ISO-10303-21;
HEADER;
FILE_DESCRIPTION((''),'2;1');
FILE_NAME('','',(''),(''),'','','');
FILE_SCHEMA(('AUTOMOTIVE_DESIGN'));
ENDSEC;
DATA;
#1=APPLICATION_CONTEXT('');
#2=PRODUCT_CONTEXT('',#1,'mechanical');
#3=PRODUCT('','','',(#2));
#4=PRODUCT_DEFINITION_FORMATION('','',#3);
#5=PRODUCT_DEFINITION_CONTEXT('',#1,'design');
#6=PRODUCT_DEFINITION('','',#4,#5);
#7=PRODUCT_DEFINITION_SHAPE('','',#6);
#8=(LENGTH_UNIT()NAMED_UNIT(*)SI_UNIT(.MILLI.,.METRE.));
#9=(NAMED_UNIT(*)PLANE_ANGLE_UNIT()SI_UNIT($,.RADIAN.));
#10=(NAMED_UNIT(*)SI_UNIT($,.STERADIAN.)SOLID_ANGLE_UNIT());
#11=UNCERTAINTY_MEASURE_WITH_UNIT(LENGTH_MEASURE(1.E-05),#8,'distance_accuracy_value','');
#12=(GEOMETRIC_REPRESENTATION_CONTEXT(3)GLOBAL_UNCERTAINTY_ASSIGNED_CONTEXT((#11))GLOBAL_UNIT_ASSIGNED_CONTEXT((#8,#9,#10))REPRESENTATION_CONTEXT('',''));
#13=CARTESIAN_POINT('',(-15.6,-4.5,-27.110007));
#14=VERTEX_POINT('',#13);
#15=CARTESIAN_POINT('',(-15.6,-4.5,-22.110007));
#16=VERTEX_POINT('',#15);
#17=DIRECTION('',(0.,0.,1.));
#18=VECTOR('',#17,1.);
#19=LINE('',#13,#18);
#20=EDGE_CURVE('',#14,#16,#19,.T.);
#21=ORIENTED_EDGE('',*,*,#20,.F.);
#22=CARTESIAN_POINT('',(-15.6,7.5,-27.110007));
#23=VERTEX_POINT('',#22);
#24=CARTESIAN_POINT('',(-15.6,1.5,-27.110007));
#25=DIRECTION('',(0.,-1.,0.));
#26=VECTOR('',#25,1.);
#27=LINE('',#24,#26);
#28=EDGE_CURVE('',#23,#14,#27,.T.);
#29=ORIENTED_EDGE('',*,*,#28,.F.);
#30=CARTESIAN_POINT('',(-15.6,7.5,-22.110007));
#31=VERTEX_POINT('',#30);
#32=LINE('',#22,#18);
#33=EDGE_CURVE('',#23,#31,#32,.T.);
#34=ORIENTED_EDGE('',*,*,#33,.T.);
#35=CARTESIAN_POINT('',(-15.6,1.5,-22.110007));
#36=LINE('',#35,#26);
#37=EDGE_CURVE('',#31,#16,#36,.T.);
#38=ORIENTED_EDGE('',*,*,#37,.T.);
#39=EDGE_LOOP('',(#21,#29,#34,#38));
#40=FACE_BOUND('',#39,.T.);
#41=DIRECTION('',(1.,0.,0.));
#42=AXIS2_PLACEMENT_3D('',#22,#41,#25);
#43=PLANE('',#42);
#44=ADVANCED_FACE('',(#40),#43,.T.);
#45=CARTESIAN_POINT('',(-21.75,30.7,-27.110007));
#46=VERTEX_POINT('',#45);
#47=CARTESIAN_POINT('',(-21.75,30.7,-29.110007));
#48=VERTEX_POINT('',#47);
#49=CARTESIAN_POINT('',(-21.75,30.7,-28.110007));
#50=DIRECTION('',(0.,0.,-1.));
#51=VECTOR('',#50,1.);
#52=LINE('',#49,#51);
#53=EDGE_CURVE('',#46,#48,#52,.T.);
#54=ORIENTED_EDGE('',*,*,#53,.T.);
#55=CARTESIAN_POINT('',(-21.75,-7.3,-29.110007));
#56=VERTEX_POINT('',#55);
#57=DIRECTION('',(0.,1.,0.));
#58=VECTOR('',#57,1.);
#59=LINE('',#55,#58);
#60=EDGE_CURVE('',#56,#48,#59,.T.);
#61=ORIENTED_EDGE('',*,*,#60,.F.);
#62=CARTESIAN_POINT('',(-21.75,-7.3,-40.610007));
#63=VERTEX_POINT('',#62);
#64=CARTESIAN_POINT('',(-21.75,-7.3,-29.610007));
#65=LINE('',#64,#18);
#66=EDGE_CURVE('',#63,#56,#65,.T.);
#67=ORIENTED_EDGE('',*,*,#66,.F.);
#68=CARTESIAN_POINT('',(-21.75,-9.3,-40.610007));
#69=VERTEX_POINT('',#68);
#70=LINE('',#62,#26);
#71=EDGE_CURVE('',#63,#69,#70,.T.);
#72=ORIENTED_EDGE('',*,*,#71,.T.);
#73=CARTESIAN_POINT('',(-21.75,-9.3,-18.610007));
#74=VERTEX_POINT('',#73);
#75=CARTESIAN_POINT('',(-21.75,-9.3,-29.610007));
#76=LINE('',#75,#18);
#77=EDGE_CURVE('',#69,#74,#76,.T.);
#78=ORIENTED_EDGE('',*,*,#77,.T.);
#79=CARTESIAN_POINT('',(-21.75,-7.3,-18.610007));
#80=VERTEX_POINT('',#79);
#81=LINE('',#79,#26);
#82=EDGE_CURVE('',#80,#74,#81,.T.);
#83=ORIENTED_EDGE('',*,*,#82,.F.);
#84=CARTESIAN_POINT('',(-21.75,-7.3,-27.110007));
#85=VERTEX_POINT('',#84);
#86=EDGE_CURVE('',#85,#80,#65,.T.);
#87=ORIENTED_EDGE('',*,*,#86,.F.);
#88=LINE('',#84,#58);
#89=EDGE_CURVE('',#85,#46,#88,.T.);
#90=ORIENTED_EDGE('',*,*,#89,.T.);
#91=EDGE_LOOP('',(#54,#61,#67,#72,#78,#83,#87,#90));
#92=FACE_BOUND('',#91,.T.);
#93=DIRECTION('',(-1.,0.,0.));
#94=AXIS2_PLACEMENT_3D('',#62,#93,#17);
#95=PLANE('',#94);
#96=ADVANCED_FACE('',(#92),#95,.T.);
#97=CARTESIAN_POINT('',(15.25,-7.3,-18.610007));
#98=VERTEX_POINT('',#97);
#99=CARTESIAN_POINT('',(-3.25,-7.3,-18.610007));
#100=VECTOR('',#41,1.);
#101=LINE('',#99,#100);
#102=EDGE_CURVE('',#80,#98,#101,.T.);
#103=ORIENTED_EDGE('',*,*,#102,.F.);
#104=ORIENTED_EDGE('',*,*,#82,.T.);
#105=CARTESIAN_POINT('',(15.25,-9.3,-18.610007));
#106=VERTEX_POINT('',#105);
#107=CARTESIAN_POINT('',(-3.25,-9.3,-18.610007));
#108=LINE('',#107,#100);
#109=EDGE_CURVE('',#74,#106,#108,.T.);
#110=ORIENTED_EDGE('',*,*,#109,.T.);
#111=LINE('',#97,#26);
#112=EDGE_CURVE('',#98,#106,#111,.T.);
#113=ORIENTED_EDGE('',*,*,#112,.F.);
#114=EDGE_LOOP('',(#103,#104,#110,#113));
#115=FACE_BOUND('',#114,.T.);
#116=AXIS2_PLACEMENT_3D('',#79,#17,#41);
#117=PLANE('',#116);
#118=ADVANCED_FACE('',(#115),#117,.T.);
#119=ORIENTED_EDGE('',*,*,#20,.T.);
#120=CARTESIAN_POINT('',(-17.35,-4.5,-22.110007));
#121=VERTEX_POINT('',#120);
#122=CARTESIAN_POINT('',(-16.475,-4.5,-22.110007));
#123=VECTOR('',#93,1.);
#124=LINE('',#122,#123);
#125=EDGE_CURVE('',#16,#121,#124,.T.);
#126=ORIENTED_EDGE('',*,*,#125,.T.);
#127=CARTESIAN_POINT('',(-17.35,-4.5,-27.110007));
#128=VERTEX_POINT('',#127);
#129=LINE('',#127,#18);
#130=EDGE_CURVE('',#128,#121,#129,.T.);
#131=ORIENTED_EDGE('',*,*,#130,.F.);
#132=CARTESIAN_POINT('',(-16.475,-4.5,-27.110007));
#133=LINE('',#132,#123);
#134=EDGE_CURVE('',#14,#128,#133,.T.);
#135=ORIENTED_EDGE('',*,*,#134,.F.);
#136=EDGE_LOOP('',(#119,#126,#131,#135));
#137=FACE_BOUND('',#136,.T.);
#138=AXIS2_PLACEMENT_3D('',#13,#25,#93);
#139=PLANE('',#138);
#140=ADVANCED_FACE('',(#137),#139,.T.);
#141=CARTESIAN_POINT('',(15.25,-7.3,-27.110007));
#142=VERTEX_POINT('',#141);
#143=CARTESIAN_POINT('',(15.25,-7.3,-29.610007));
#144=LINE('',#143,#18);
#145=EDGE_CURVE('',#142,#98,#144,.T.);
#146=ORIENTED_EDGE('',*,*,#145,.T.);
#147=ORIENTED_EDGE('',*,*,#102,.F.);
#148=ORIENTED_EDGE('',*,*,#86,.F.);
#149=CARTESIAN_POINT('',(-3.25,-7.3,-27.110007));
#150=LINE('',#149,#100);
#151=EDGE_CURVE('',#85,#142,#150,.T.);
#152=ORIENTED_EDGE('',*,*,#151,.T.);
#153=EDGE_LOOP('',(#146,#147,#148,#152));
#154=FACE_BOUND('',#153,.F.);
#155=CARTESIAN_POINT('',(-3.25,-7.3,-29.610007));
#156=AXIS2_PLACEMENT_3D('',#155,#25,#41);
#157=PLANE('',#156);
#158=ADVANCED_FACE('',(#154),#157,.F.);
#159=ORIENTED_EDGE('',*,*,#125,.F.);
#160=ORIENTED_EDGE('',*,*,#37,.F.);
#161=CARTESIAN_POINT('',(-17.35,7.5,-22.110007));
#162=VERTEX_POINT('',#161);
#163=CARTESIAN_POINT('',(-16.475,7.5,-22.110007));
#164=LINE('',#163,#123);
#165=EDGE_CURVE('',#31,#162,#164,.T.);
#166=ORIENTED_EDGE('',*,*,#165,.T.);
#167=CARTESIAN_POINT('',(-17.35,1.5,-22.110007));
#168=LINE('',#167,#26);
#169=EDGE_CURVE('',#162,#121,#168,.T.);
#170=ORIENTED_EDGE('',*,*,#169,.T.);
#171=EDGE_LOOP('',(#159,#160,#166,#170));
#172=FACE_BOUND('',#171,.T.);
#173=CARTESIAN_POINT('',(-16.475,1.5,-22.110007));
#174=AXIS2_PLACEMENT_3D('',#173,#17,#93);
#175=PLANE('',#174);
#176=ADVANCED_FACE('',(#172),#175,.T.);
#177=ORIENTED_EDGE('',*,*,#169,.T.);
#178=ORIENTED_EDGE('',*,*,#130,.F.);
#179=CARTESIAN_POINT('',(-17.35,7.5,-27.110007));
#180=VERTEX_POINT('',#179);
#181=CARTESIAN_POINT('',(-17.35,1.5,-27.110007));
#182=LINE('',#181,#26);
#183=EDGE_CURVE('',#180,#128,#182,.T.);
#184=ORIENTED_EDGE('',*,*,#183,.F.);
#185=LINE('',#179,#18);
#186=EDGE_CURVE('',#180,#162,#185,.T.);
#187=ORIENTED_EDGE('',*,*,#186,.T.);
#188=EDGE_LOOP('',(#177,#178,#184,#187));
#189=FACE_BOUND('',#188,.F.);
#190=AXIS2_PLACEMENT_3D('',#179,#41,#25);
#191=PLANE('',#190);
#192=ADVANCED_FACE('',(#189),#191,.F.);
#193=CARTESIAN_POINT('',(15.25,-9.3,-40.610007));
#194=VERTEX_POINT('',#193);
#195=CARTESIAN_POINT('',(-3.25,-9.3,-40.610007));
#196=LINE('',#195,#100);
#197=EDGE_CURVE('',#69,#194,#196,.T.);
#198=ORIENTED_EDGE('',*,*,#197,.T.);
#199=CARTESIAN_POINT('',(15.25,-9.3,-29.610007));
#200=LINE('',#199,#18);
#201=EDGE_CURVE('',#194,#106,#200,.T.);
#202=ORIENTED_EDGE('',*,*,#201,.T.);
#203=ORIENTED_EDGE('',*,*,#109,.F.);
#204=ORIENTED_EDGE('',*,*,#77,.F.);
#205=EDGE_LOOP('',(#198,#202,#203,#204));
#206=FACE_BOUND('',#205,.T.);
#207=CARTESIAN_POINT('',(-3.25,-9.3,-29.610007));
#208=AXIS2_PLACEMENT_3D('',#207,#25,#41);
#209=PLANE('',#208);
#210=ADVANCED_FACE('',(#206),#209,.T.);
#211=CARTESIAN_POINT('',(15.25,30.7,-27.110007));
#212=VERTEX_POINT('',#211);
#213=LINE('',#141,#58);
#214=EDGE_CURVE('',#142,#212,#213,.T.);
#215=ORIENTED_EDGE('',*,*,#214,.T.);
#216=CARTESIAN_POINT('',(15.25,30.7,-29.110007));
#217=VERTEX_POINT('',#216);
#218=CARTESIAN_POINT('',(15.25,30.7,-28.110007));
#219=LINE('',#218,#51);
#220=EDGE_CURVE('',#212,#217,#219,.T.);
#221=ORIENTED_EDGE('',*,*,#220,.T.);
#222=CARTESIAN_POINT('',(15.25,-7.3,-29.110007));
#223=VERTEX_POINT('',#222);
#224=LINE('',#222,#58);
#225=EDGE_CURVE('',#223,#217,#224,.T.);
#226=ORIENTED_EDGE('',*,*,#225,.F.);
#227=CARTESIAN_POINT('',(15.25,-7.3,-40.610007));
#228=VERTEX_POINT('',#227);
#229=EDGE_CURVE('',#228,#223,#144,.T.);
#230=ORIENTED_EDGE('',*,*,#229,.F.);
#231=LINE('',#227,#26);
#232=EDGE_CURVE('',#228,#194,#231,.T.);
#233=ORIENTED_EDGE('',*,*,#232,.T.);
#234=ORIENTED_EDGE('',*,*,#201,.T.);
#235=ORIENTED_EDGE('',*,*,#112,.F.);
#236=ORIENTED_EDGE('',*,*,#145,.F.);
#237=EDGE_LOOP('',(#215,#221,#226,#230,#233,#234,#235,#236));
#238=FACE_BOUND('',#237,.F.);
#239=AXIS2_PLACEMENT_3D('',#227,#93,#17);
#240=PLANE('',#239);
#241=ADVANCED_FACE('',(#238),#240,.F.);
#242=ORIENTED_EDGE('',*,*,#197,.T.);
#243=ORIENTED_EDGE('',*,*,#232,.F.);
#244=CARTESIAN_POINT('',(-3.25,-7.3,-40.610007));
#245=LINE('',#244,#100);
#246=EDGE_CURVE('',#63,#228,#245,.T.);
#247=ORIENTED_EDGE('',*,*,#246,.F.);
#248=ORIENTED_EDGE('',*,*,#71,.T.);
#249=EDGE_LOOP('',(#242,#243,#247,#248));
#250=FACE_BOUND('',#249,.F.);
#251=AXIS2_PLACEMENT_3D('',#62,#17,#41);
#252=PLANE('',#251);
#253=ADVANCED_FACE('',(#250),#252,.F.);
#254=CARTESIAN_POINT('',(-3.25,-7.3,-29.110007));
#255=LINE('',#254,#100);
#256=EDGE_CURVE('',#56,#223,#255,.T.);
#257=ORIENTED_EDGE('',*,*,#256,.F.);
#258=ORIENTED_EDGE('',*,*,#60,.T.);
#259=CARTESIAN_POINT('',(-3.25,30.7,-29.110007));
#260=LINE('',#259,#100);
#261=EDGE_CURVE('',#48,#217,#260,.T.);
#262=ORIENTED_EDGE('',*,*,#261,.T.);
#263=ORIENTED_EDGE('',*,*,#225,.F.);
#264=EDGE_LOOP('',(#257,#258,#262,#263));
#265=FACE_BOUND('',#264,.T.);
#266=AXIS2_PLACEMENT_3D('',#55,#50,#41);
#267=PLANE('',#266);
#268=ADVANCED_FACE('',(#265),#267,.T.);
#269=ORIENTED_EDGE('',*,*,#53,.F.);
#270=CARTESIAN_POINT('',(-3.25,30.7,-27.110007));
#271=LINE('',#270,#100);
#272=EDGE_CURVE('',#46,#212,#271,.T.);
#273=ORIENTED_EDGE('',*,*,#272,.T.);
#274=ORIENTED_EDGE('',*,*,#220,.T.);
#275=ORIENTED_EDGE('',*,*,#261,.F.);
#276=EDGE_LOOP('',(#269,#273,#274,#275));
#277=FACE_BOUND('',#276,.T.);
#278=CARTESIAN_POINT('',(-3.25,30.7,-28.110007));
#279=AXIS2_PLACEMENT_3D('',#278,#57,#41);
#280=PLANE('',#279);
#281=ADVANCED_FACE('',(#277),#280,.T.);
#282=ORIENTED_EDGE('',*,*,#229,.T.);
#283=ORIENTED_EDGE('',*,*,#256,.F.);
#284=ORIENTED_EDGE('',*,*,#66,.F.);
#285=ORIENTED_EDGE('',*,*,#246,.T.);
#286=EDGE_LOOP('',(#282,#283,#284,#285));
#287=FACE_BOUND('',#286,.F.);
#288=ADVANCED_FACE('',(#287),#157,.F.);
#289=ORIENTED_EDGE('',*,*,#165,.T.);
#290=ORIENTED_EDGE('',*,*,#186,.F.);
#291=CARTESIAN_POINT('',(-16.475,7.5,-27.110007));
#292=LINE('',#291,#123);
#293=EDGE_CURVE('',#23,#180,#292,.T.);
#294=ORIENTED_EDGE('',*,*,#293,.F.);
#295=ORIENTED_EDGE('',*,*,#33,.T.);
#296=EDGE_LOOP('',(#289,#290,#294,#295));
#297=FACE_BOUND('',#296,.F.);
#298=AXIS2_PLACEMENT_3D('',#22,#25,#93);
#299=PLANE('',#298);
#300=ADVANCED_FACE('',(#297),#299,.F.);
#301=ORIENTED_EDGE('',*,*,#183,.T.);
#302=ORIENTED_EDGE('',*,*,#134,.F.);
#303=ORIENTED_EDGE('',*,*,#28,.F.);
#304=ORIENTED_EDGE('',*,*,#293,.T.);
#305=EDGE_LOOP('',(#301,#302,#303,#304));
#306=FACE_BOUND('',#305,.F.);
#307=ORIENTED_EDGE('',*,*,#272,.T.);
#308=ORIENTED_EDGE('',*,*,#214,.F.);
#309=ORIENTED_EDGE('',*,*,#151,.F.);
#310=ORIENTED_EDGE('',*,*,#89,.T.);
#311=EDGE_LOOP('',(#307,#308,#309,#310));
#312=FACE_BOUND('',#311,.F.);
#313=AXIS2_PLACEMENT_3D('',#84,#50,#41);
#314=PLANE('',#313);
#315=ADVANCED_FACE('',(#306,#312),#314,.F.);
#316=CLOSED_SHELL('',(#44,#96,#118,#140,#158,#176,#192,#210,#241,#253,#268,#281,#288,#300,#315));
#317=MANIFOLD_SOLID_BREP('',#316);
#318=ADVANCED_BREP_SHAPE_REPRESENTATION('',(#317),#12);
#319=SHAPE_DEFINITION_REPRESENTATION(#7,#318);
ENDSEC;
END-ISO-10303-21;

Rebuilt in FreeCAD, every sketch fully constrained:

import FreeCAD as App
import Part
import Sketcher
Q = App.Units.Quantity


def add_polygon(sketch, points):
    """Adds a closed chain of lines whose ends are joined by coincident constraints."""
    first, n = sketch.GeometryCount, len(points)
    for a, b in zip(points, points[1:] + points[:1]):
        sketch.addGeometry(Part.LineSegment(App.Vector(*a, 0), App.Vector(*b, 0)), False)
    for i in range(n):
        sketch.addConstraint(Sketcher.Constraint("Coincident", first + i, 2, first + (i + 1) % n, 1))

doc = App.newDocument("Part")
body = doc.addObject("PartDesign::Body", "Body")

# Sketch on XZ plane
sketch1 = body.newObject("Sketcher::SketchObject", "Sketch")
sketch1.AttachmentSupport = (doc.getObject("XZ_Plane"), [""])
sketch1.MapMode = "FlatFace"
sketch1.AttachmentOffset = App.Placement(App.Vector(0, 0, 7.3), App.Rotation())
add_polygon(sketch1, [(-22, -19), (-22, -41), (15, -41), (15, -19)])  # lines 0-3
sketch1.addConstraint([
    Sketcher.Constraint("Vertical", 0),
    Sketcher.Constraint("Horizontal", 1),
    Sketcher.Constraint("Vertical", 2),
    Sketcher.Constraint("Horizontal", 3),
    Sketcher.Constraint("DistanceX", 1, 1, 1, 2, Q("37 mm")),
    Sketcher.Constraint("DistanceY", 0, 2, 0, 1, Q("22 mm")),
    Sketcher.Constraint("DistanceX", 0, 2, -1, 1, Q("21.75 mm")),
    Sketcher.Constraint("DistanceY", 0, 2, -1, 1, Q("40.610007 mm")),
])
pad1 = body.newObject("PartDesign::Pad", "Pad")
pad1.Profile = sketch1
pad1.Length = 2

# Sketch on XZ plane
sketch2 = body.newObject("Sketcher::SketchObject", "Sketch001")
sketch2.AttachmentSupport = (doc.getObject("XZ_Plane"), [""])
sketch2.MapMode = "FlatFace"
sketch2.AttachmentOffset = App.Placement(App.Vector(0, 0, 7.3), App.Rotation())
add_polygon(sketch2, [(-21.8, -29.1), (-21.8, -27.1), (15.2, -27.1), (15.2, -29.1)])  # lines 0-3
sketch2.addConstraint([
    Sketcher.Constraint("Vertical", 0),
    Sketcher.Constraint("Horizontal", 1),
    Sketcher.Constraint("Vertical", 2),
    Sketcher.Constraint("Horizontal", 3),
    Sketcher.Constraint("DistanceX", 1, 1, 1, 2, Q("37 mm")),
    Sketcher.Constraint("DistanceY", 0, 1, 0, 2, Q("2 mm")),
    Sketcher.Constraint("DistanceX", 0, 2, -1, 1, Q("21.75 mm")),
    Sketcher.Constraint("DistanceY", 0, 2, -1, 1, Q("27.110007 mm")),
])
pad2 = body.newObject("PartDesign::Pad", "Pad001")
pad2.Profile = sketch2
pad2.Length = 38
pad2.Reversed = True

# Sketch on XY plane
sketch3 = body.newObject("Sketcher::SketchObject", "Sketch002")
sketch3.AttachmentSupport = (doc.getObject("XY_Plane"), [""])
sketch3.MapMode = "FlatFace"
sketch3.AttachmentOffset = App.Placement(App.Vector(0, 0, -27.110007), App.Rotation())
add_polygon(sketch3, [(-15.6, -4.5), (-15.6, 7.5), (-17.4, 7.5), (-17.4, -4.5)])  # lines 0-3
sketch3.addConstraint([
    Sketcher.Constraint("Vertical", 0),
    Sketcher.Constraint("Horizontal", 1),
    Sketcher.Constraint("Vertical", 2),
    Sketcher.Constraint("Horizontal", 3),
    Sketcher.Constraint("DistanceY", 0, 1, 0, 2, Q("12 mm")),
    Sketcher.Constraint("DistanceX", 1, 2, 1, 1, Q("1.75 mm")),
    Sketcher.Constraint("DistanceX", 0, 2, -1, 1, Q("15.6 mm")),
    Sketcher.Constraint("DistanceY", -1, 1, 0, 2, Q("7.5 mm")),
])
pad3 = body.newObject("PartDesign::Pad", "Pad002")
pad3.Profile = sketch3
pad3.Length = 5

doc.recompute()
